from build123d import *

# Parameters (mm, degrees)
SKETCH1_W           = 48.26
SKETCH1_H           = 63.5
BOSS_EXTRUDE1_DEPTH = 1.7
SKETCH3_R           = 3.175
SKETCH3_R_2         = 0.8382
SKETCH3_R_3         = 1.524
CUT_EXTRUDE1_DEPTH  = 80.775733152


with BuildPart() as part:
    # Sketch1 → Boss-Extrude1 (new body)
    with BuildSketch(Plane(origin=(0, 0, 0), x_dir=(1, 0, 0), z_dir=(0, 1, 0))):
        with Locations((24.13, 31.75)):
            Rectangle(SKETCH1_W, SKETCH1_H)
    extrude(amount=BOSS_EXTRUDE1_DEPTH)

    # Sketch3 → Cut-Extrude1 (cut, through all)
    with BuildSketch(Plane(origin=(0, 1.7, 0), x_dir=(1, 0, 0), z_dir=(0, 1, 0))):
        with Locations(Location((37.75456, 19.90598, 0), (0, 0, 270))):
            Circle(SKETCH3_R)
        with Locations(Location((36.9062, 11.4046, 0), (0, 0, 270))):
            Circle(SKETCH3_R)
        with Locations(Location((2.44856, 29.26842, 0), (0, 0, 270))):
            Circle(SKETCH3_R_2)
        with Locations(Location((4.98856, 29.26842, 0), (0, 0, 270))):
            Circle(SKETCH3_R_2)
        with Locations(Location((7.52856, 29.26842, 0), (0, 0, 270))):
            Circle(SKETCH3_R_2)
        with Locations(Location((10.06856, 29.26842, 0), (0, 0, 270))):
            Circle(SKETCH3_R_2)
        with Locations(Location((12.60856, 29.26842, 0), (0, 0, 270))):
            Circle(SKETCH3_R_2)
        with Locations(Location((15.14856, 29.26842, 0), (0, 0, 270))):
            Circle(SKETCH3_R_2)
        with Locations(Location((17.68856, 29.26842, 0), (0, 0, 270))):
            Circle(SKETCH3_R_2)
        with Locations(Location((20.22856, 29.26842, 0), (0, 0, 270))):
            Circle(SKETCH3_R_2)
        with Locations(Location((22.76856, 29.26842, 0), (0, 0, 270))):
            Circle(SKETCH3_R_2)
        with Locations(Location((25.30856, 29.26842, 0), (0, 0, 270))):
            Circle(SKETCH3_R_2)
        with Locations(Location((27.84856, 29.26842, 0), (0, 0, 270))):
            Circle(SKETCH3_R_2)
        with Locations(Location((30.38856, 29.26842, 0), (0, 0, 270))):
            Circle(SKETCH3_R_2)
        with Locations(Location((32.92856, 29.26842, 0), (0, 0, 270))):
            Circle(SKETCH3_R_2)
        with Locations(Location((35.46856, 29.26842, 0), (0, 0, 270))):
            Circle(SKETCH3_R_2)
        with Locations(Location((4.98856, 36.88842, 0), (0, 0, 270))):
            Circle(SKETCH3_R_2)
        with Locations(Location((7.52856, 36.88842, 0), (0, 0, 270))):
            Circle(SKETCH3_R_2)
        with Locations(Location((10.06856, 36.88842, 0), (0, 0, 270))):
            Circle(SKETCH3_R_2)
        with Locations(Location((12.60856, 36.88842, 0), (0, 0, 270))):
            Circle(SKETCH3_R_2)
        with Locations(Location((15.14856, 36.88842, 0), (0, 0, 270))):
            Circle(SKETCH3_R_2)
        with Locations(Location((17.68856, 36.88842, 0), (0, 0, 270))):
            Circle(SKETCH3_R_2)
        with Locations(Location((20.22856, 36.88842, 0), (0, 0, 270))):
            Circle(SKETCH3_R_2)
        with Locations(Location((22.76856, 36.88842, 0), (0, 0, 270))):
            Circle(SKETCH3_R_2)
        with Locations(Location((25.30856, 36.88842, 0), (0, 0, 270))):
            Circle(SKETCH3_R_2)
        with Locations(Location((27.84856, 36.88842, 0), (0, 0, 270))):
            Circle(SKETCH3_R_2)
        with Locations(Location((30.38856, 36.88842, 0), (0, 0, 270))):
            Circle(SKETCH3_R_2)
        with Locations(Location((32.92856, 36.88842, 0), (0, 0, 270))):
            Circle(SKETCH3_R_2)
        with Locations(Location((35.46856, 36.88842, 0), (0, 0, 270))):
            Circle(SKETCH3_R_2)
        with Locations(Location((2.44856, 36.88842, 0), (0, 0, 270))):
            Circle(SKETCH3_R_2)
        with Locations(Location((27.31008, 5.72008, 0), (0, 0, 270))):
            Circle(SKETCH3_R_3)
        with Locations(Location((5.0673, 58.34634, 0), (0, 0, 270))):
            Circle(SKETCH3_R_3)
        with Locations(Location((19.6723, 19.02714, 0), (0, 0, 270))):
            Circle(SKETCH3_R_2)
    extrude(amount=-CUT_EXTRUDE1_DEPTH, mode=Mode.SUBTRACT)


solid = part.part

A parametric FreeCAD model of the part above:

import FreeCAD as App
import Part
import Sketcher

V = App.Vector
Q = App.Units.Quantity


def add_polygon(sketch, points):
    """Adds a closed chain of lines whose ends are joined by coincident constraints."""
    first, n = sketch.GeometryCount, len(points)
    for a, b in zip(points, points[1:] + points[:1]):
        sketch.addGeometry(Part.LineSegment(App.Vector(*a, 0), App.Vector(*b, 0)), False)
    for i in range(n):
        sketch.addConstraint(Sketcher.Constraint("Coincident", first + i, 2, first + (i + 1) % n, 1))

doc = App.newDocument("Part")
body = doc.addObject("PartDesign::Body", "Body")

sketch1 = body.newObject("Sketcher::SketchObject", "Sketch")
sketch1.AttachmentSupport = (doc.getObject("XZ_Plane"), [""])
sketch1.MapMode = "FlatFace"
add_polygon(sketch1, [(0, -63.5), (0, 0), (48.26, 0), (48.26, -63.5)])
sketch1.addConstraint([
    Sketcher.Constraint("Vertical", 0),
    Sketcher.Constraint("Horizontal", 1),
    Sketcher.Constraint("Vertical", 2),
    Sketcher.Constraint("Horizontal", 3),
    Sketcher.Constraint("Coincident", 0, 2, -1, 1),
    Sketcher.Constraint("DistanceX", 1, 1, 1, 2, Q("1.9 in")),
    Sketcher.Constraint("DistanceY", 0, 1, 0, 2, Q("2.5 in")),
])
pad1 = body.newObject("PartDesign::Pad", "Pad")
pad1.Profile = sketch1
pad1.Length = 1.7
pad1.Reversed = True

sketch2 = body.newObject("Sketcher::SketchObject", "Sketch001")
sketch2.AttachmentSupport = (doc.getObject("XZ_Plane"), [""])
sketch2.MapMode = "FlatFace"
sketch2.AttachmentOffset = App.Placement(V(0, 0, -1.7), App.Rotation())
sketch2.addGeometry([
    Part.Circle(V(37.75456, -19.90598, 0), V(0, 0, 1), 3.175),
    Part.Circle(V(36.9062, -11.4046, 0), V(0, 0, 1), 3.175),
    Part.Circle(V(2.44856, -29.26842, 0), V(0, 0, 1), 0.8382),
    Part.Circle(V(4.98856, -29.26842, 0), V(0, 0, 1), 0.8382),
    Part.Circle(V(7.52856, -29.26842, 0), V(0, 0, 1), 0.8382),
    Part.Circle(V(10.06856, -29.26842, 0), V(0, 0, 1), 0.8382),
    Part.Circle(V(12.60856, -29.26842, 0), V(0, 0, 1), 0.8382),
    Part.Circle(V(15.14856, -29.26842, 0), V(0, 0, 1), 0.8382),
    Part.Circle(V(17.68856, -29.26842, 0), V(0, 0, 1), 0.8382),
    Part.Circle(V(20.22856, -29.26842, 0), V(0, 0, 1), 0.8382),
    Part.Circle(V(22.76856, -29.26842, 0), V(0, 0, 1), 0.8382),
    Part.Circle(V(25.30856, -29.26842, 0), V(0, 0, 1), 0.8382),
    Part.Circle(V(27.84856, -29.26842, 0), V(0, 0, 1), 0.8382),
    Part.Circle(V(30.38856, -29.26842, 0), V(0, 0, 1), 0.8382),
    Part.Circle(V(32.92856, -29.26842, 0), V(0, 0, 1), 0.8382),
    Part.Circle(V(35.46856, -29.26842, 0), V(0, 0, 1), 0.8382),
    Part.Circle(V(4.98856, -36.88842, 0), V(0, 0, 1), 0.8382),
    Part.Circle(V(7.52856, -36.88842, 0), V(0, 0, 1), 0.8382),
    Part.Circle(V(10.06856, -36.88842, 0), V(0, 0, 1), 0.8382),
    Part.Circle(V(12.60856, -36.88842, 0), V(0, 0, 1), 0.8382),
    Part.Circle(V(15.14856, -36.88842, 0), V(0, 0, 1), 0.8382),
    Part.Circle(V(17.68856, -36.88842, 0), V(0, 0, 1), 0.8382),
    Part.Circle(V(20.22856, -36.88842, 0), V(0, 0, 1), 0.8382),
    Part.Circle(V(22.76856, -36.88842, 0), V(0, 0, 1), 0.8382),
    Part.Circle(V(25.30856, -36.88842, 0), V(0, 0, 1), 0.8382),
    Part.Circle(V(27.84856, -36.88842, 0), V(0, 0, 1), 0.8382),
    Part.Circle(V(30.38856, -36.88842, 0), V(0, 0, 1), 0.8382),
    Part.Circle(V(32.92856, -36.88842, 0), V(0, 0, 1), 0.8382),
    Part.Circle(V(35.46856, -36.88842, 0), V(0, 0, 1), 0.8382),
    Part.Circle(V(2.44856, -36.88842, 0), V(0, 0, 1), 0.8382),
    Part.Circle(V(27.31008, -5.72008, 0), V(0, 0, 1), 1.524),
    Part.Circle(V(5.0673, -58.34634, 0), V(0, 0, 1), 1.524),
    Part.Circle(V(19.6723, -19.02714, 0), V(0, 0, 1), 0.8382),
], False)
sketch2.addConstraint([
    Sketcher.Constraint("Equal", 0, 1),
    Sketcher.Constraint("Equal", 2, 3),
    Sketcher.Constraint("Equal", 3, 4),
    Sketcher.Constraint("Equal", 4, 5),
    Sketcher.Constraint("Equal", 5, 6),
    Sketcher.Constraint("Equal", 6, 7),
    Sketcher.Constraint("Equal", 7, 8),
    Sketcher.Constraint("Equal", 8, 9),
    Sketcher.Constraint("Equal", 9, 10),
    Sketcher.Constraint("Equal", 10, 11),
    Sketcher.Constraint("Equal", 11, 12),
    Sketcher.Constraint("Equal", 12, 13),
    Sketcher.Constraint("Equal", 13, 14),
    Sketcher.Constraint("Equal", 14, 15),
    Sketcher.Constraint("Equal", 15, 16),
    Sketcher.Constraint("Equal", 16, 17),
    Sketcher.Constraint("Equal", 17, 18),
    Sketcher.Constraint("Equal", 18, 19),
    Sketcher.Constraint("Equal", 19, 20),
    Sketcher.Constraint("Equal", 20, 21),
    Sketcher.Constraint("Equal", 21, 22),
    Sketcher.Constraint("Equal", 22, 23),
    Sketcher.Constraint("Equal", 23, 24),
    Sketcher.Constraint("Equal", 24, 25),
    Sketcher.Constraint("Equal", 25, 26),
    Sketcher.Constraint("Equal", 26, 27),
    Sketcher.Constraint("Equal", 27, 28),
    Sketcher.Constraint("Equal", 28, 29),
    Sketcher.Constraint("Equal", 30, 31),
    Sketcher.Constraint("Equal", 29, 32),
    Sketcher.Constraint("Horizontal", 2, 3, 3, 3),
    Sketcher.Constraint("Horizontal", 3, 3, 4, 3),
    Sketcher.Constraint("Horizontal", 4, 3, 5, 3),
    Sketcher.Constraint("Horizontal", 5, 3, 6, 3),
    Sketcher.Constraint("Horizontal", 6, 3, 7, 3),
    Sketcher.Constraint("Horizontal", 7, 3, 8, 3),
    Sketcher.Constraint("Horizontal", 8, 3, 9, 3),
    Sketcher.Constraint("Horizontal", 9, 3, 10, 3),
    Sketcher.Constraint("Horizontal", 10, 3, 11, 3),
    Sketcher.Constraint("Horizontal", 11, 3, 12, 3),
    Sketcher.Constraint("Horizontal", 12, 3, 13, 3),
    Sketcher.Constraint("Horizontal", 13, 3, 14, 3),
    Sketcher.Constraint("Horizontal", 14, 3, 15, 3),
    Sketcher.Constraint("Horizontal", 16, 3, 17, 3),
    Sketcher.Constraint("Horizontal", 17, 3, 18, 3),
    Sketcher.Constraint("Horizontal", 18, 3, 19, 3),
    Sketcher.Constraint("Horizontal", 19, 3, 20, 3),
    Sketcher.Constraint("Horizontal", 20, 3, 21, 3),
    Sketcher.Constraint("Horizontal", 21, 3, 22, 3),
    Sketcher.Constraint("Horizontal", 22, 3, 23, 3),
    Sketcher.Constraint("Horizontal", 23, 3, 24, 3),
    Sketcher.Constraint("Horizontal", 24, 3, 25, 3),
    Sketcher.Constraint("Horizontal", 25, 3, 26, 3),
    Sketcher.Constraint("Horizontal", 26, 3, 27, 3),
    Sketcher.Constraint("Horizontal", 27, 3, 28, 3),
    Sketcher.Constraint("Horizontal", 28, 3, 29, 3),
    Sketcher.Constraint("Vertical", 3, 3, 16, 3),
    Sketcher.Constraint("Vertical", 4, 3, 17, 3),
    Sketcher.Constraint("Vertical", 5, 3, 18, 3),
    Sketcher.Constraint("Vertical", 6, 3, 19, 3),
    Sketcher.Constraint("Vertical", 7, 3, 20, 3),
    Sketcher.Constraint("Vertical", 8, 3, 21, 3),
    Sketcher.Constraint("Vertical", 9, 3, 22, 3),
    Sketcher.Constraint("Vertical", 10, 3, 23, 3),
    Sketcher.Constraint("Vertical", 11, 3, 24, 3),
    Sketcher.Constraint("Vertical", 12, 3, 25, 3),
    Sketcher.Constraint("Vertical", 13, 3, 26, 3),
    Sketcher.Constraint("Vertical", 14, 3, 27, 3),
    Sketcher.Constraint("Vertical", 15, 3, 28, 3),
    Sketcher.Constraint("Vertical", 2, 3, 29, 3),
    Sketcher.Constraint("Diameter", 0, Q("0.25 in")),
    Sketcher.Constraint("Diameter", 30, Q("0.12 in")),
    Sketcher.Constraint("Diameter", 2, Q("0.066 in")),
    Sketcher.Constraint("DistanceX", 2, 3, 3, 3, Q("0.1 in")),
    Sketcher.Constraint("DistanceX", 3, 3, 4, 3, Q("0.1 in")),
    Sketcher.Constraint("DistanceX", 4, 3, 5, 3, Q("0.1 in")),
    Sketcher.Constraint("DistanceX", 5, 3, 6, 3, Q("0.1 in")),
    Sketcher.Constraint("DistanceX", 6, 3, 7, 3, Q("0.1 in")),
    Sketcher.Constraint("DistanceX", 7, 3, 8, 3, Q("0.1 in")),
    Sketcher.Constraint("DistanceX", 8, 3, 9, 3, Q("0.1 in")),
    Sketcher.Constraint("DistanceX", 9, 3, 10, 3, Q("0.1 in")),
    Sketcher.Constraint("DistanceX", 10, 3, 11, 3, Q("0.1 in")),
    Sketcher.Constraint("DistanceX", 11, 3, 12, 3, Q("0.1 in")),
    Sketcher.Constraint("DistanceX", 12, 3, 13, 3, Q("0.1 in")),
    Sketcher.Constraint("DistanceX", 13, 3, 14, 3, Q("0.1 in")),
    Sketcher.Constraint("DistanceX", 14, 3, 15, 3, Q("0.1 in")),
    Sketcher.Constraint("DistanceY", 16, 3, 3, 3, Q("0.3 in")),
    Sketcher.Constraint("DistanceX", 2, 3, 0, 3, Q("1.39 in")),
    Sketcher.Constraint("DistanceX", -1, 1, 1, 3, Q("1.453 in")),
    Sketcher.Constraint("DistanceY", 1, 3, -1, 1, Q("0.449 in")),
    Sketcher.Constraint("DistanceX", -1, 1, 0, 3, Q("1.4864 in")),
    Sketcher.Constraint("DistanceY", 0, 3, -1, 1, Q("0.7837 in")),
    Sketcher.Constraint("DistanceY", 2, 3, -1, 1, Q("1.1523 in")),
    Sketcher.Constraint("DistanceX", -1, 1, 30, 3, Q("1.0752 in")),
    Sketcher.Constraint("DistanceY", 30, 3, -1, 1, Q("0.2252 in")),
    Sketcher.Constraint("DistanceX", -1, 1, 31, 3, Q("0.1995 in")),
    Sketcher.Constraint("DistanceY", 31, 3, -1, 1, Q("2.2971 in")),
    Sketcher.Constraint("DistanceX", -1, 1, 32, 3, Q("0.7745 in")),
    Sketcher.Constraint("DistanceY", 32, 3, -1, 1, Q("0.7491 in")),
])
pocket1 = body.newObject("PartDesign::Pocket", "Pocket")
pocket1.Profile = sketch2
pocket1.Type = "ThroughAll"
pocket1.Reversed = True

doc.recompute()
